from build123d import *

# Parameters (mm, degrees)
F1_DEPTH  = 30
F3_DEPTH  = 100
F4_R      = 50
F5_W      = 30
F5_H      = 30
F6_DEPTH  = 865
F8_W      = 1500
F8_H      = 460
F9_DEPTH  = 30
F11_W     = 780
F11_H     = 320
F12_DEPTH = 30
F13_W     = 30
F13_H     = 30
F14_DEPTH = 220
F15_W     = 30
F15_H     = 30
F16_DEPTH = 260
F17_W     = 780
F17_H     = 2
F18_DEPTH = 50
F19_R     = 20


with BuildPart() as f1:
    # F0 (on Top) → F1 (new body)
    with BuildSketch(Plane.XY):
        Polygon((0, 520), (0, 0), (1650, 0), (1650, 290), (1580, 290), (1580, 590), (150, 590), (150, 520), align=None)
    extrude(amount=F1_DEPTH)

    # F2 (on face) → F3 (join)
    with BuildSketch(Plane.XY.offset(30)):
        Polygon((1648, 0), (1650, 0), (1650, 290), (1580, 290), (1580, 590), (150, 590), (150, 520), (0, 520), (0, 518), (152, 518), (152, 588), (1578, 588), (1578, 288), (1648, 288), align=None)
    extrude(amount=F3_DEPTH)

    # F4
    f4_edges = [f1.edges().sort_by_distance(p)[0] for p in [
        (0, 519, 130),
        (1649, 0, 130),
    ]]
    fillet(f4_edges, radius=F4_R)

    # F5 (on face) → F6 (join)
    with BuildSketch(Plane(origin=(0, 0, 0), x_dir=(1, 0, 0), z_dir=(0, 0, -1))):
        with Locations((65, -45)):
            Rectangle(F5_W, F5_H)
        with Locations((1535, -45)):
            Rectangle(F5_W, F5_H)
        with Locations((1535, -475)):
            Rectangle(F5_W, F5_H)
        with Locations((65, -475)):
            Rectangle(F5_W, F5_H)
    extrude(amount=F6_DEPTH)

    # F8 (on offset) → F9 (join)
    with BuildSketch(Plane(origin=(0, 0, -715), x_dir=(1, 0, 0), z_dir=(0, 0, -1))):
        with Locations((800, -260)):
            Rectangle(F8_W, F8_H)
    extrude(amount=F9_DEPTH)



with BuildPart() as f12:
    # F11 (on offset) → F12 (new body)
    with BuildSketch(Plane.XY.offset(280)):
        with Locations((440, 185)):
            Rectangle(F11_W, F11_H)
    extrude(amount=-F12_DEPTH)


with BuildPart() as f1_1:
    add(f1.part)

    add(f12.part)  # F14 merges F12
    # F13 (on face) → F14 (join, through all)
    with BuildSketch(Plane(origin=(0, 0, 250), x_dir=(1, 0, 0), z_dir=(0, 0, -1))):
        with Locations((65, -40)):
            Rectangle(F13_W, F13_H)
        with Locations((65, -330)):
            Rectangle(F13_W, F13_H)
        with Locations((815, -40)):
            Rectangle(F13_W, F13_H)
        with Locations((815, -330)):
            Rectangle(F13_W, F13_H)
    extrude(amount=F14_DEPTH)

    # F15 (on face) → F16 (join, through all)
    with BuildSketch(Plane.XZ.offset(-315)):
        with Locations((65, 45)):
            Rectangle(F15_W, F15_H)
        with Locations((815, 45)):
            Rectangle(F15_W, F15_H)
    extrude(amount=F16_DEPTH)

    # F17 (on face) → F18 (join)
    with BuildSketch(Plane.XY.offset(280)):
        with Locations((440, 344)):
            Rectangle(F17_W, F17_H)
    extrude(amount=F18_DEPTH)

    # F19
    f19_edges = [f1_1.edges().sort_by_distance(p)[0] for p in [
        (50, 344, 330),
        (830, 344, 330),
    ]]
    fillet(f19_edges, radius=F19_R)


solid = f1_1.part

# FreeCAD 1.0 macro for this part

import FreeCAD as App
import Part
import Sketcher

V = App.Vector


def edges_at(feature, points):
    """Names of the edges that pass closest to the given points."""
    edges = feature.Shape.Edges
    near = lambda p: min(range(len(edges)), key=lambda i: edges[i].distToShape(Part.Vertex(*p))[0])
    return sorted({f"Edge{near(p) + 1}" for p in points})

doc = App.newDocument("Part")
params = doc.addObject("Spreadsheet::Sheet", "Params")
for row, (alias, value) in enumerate([
    ("sketch1_width", "1650 mm"),
    ("sketch1_width2", "70 mm"),
    ("sketch1_width3", "1430 mm"),
    ("sketch1_height", "520 mm"),
    ("sketch1_height2", "290 mm"),
    ("pad1_length", "30 mm"),
    ("sketch2_width", "2 mm"),
    ("sketch2_width2", "70 mm"),
    ("sketch2_width3", "1430 mm"),
    ("sketch2_width4", "150 mm"),
    ("sketch2_width5", "152 mm"),
    ("pad2_length", "100 mm"),
    ("fillet_radius", "50 mm"),
    ("sketch3_width", "30 mm"),
    ("pad3_length", "865 mm"),
    ("sketch4_width", "1500 mm"),
    ("sketch4_height", "460 mm"),
    ("pad4_length", "30 mm"),
    ("sketch5_width", "780 mm"),
    ("sketch5_height", "320 mm"),
    ("pad5_length", "30 mm"),
    ("sketch6_width", "30 mm"),
    ("pad6_length", "220 mm"),
    ("sketch7_width", "30 mm"),
    ("pad7_length", "260 mm"),
    ("sketch8_width", "780 mm"),
    ("sketch8_height", "2 mm"),
    ("pad8_length", "50 mm"),
    ("fillet2_radius", "20 mm"),
], start=1):
    params.set(f"A{row}", alias)
    params.set(f"B{row}", "=" + value)
    params.setAlias(f"B{row}", alias)

body = doc.addObject("PartDesign::Body", "Body")

# Sketch on XY plane
sketch1 = body.newObject("Sketcher::SketchObject", "Sketch")
sketch1.AttachmentSupport = (doc.getObject("XY_Plane"), [""])
sketch1.MapMode = "FlatFace"
sketch1.addGeometry([
    Part.LineSegment(V(0, 520, 0), V(0, 0, 0)),  # 0
    Part.LineSegment(V(0, 0, 0), V(1650, 0, 0)),  # 1
    Part.LineSegment(V(1650, 0, 0), V(1650, 290, 0)),  # 2
    Part.LineSegment(V(1650, 290, 0), V(1580, 290, 0)),  # 3
    Part.LineSegment(V(1580, 290, 0), V(1580, 590, 0)),  # 4
    Part.LineSegment(V(1580, 590, 0), V(150, 590, 0)),  # 5
    Part.LineSegment(V(150, 590, 0), V(150, 520, 0)),  # 6
    Part.LineSegment(V(150, 520, 0), V(0, 520, 0)),  # 7
], False)
sketch1.addConstraint([
    Sketcher.Constraint("Coincident", 0, 2, 1, 1),
    Sketcher.Constraint("Coincident", 1, 2, 2, 1),
    Sketcher.Constraint("Coincident", 2, 2, 3, 1),
    Sketcher.Constraint("Coincident", 3, 2, 4, 1),
    Sketcher.Constraint("Coincident", 4, 2, 5, 1),
    Sketcher.Constraint("Coincident", 5, 2, 6, 1),
    Sketcher.Constraint("Coincident", 6, 2, 7, 1),
    Sketcher.Constraint("Coincident", 7, 2, 0, 1),
    Sketcher.Constraint("Vertical", 0),
    Sketcher.Constraint("Horizontal", 1),
    Sketcher.Constraint("Vertical", 2),
    Sketcher.Constraint("Horizontal", 3),
    Sketcher.Constraint("Vertical", 4),
    Sketcher.Constraint("Horizontal", 5),
    Sketcher.Constraint("Vertical", 6),
    Sketcher.Constraint("Horizontal", 7),
    Sketcher.Constraint("Coincident", 0, 2, -1, 1),
    Sketcher.Constraint("Equal", 3, 6),
    Sketcher.Constraint("DistanceX", 1, 1, 1, 2, 1650.0),
    Sketcher.Constraint("DistanceX", 3, 2, 3, 1, 70.0),
    Sketcher.Constraint("DistanceX", 5, 2, 5, 1, 1430.0),
    Sketcher.Constraint("DistanceY", 0, 2, 0, 1, 520.0),
    Sketcher.Constraint("DistanceY", 2, 1, 2, 2, 290.0),
])
sketch1.setExpression("Constraints[18]", "Params.sketch1_width")
sketch1.setExpression("Constraints[19]", "Params.sketch1_width2")
sketch1.setExpression("Constraints[20]", "Params.sketch1_width3")
sketch1.setExpression("Constraints[21]", "Params.sketch1_height")
sketch1.setExpression("Constraints[22]", "Params.sketch1_height2")
pad1 = body.newObject("PartDesign::Pad", "Pad")
pad1.Profile = sketch1
pad1.setExpression("Length", "Params.pad1_length")

# Sketch on XY plane
sketch2 = body.newObject("Sketcher::SketchObject", "Sketch001")
sketch2.AttachmentSupport = (doc.getObject("XY_Plane"), [""])
sketch2.MapMode = "FlatFace"
sketch2.AttachmentOffset = App.Placement(V(0, 0, 30), App.Rotation())
sketch2.addGeometry([
    Part.LineSegment(V(1648, 0, 0), V(1650, 0, 0)),  # 0
    Part.LineSegment(V(1650, 0, 0), V(1650, 290, 0)),  # 1
    Part.LineSegment(V(1650, 290, 0), V(1580, 290, 0)),  # 2
    Part.LineSegment(V(1580, 290, 0), V(1580, 590, 0)),  # 3
    Part.LineSegment(V(1580, 590, 0), V(150, 590, 0)),  # 4
    Part.LineSegment(V(150, 590, 0), V(150, 520, 0)),  # 5
    Part.LineSegment(V(150, 520, 0), V(0, 520, 0)),  # 6
    Part.LineSegment(V(0, 520, 0), V(0, 518, 0)),  # 7
    Part.LineSegment(V(0, 518, 0), V(152, 518, 0)),  # 8
    Part.LineSegment(V(152, 518, 0), V(152, 588, 0)),  # 9
    Part.LineSegment(V(152, 588, 0), V(1578, 588, 0)),  # 10
    Part.LineSegment(V(1578, 588, 0), V(1578, 288, 0)),  # 11
    Part.LineSegment(V(1578, 288, 0), V(1648, 288, 0)),  # 12
    Part.LineSegment(V(1648, 288, 0), V(1648, 0, 0)),  # 13
], False)
sketch2.addConstraint([
    Sketcher.Constraint("Coincident", 0, 2, 1, 1),
    Sketcher.Constraint("Coincident", 1, 2, 2, 1),
    Sketcher.Constraint("Coincident", 2, 2, 3, 1),
    Sketcher.Constraint("Coincident", 3, 2, 4, 1),
    Sketcher.Constraint("Coincident", 4, 2, 5, 1),
    Sketcher.Constraint("Coincident", 5, 2, 6, 1),
    Sketcher.Constraint("Coincident", 6, 2, 7, 1),
    Sketcher.Constraint("Coincident", 7, 2, 8, 1),
    Sketcher.Constraint("Coincident", 8, 2, 9, 1),
    Sketcher.Constraint("Coincident", 9, 2, 10, 1),
    Sketcher.Constraint("Coincident", 10, 2, 11, 1),
    Sketcher.Constraint("Coincident", 11, 2, 12, 1),
    Sketcher.Constraint("Coincident", 12, 2, 13, 1),
    Sketcher.Constraint("Coincident", 13, 2, 0, 1),
    Sketcher.Constraint("Horizontal", 0),
    Sketcher.Constraint("Vertical", 1),
    Sketcher.Constraint("Horizontal", 2),
    Sketcher.Constraint("Vertical", 3),
    Sketcher.Constraint("Horizontal", 4),
    Sketcher.Constraint("Vertical", 5),
    Sketcher.Constraint("Horizontal", 6),
    Sketcher.Constraint("Vertical", 7),
    Sketcher.Constraint("Horizontal", 8),
    Sketcher.Constraint("Vertical", 9),
    Sketcher.Constraint("Horizontal", 10),
    Sketcher.Constraint("Vertical", 11),
    Sketcher.Constraint("Horizontal", 12),
    Sketcher.Constraint("Vertical", 13),
    Sketcher.Constraint("PointOnObject", 0, 2, -1),
    Sketcher.Constraint("PointOnObject", 6, 2, -2),
    Sketcher.Constraint("Equal", 2, 12),
    Sketcher.Constraint("Equal", 12, 5),
    Sketcher.Constraint("Equal", 0, 7),
    Sketcher.Constraint("Equal", 5, 9),
    Sketcher.Constraint("Equal", 3, 11),
    Sketcher.Constraint("DistanceX", 0, 1, 0, 2, 2.0),
    Sketcher.Constraint("DistanceX", 2, 2, 2, 1, 70.0),
    Sketcher.Constraint("DistanceX", 4, 2, 4, 1, 1430.0),
    Sketcher.Constraint("DistanceX", 6, 2, 6, 1, 150.0),
    Sketcher.Constraint("DistanceX", 8, 1, 8, 2, 152.0),
    Sketcher.Constraint("DistanceY", 1, 1, 1, 2, 290.0),
    Sketcher.Constraint("DistanceY", 3, 1, 3, 2, 300.0),
])
sketch2.setExpression("Constraints[35]", "Params.sketch2_width")
sketch2.setExpression("Constraints[36]", "Params.sketch2_width2")
sketch2.setExpression("Constraints[37]", "Params.sketch2_width3")
sketch2.setExpression("Constraints[38]", "Params.sketch2_width4")
sketch2.setExpression("Constraints[39]", "Params.sketch2_width5")
pad2 = body.newObject("PartDesign::Pad", "Pad001")
pad2.Profile = sketch2
pad2.setExpression("Length", "Params.pad2_length")
doc.recompute()

fillet = body.newObject("PartDesign::Fillet", "Fillet")
fillet.Base = (pad2, edges_at(pad2, [(0, 519, 130), (1649, 0, 130)]))
fillet.setExpression("Radius", "Params.fillet_radius")

# Sketch on XY plane
sketch3 = body.newObject("Sketcher::SketchObject", "Sketch002")
sketch3.AttachmentSupport = (doc.getObject("XY_Plane"), [""])
sketch3.MapMode = "FlatFace"
sketch3.addGeometry([
    Part.LineSegment(V(50, 30, 0), V(50, 60, 0)),  # 0
    Part.LineSegment(V(50, 60, 0), V(80, 60, 0)),  # 1
    Part.LineSegment(V(80, 60, 0), V(80, 30, 0)),  # 2
    Part.LineSegment(V(80, 30, 0), V(50, 30, 0)),  # 3
    Part.LineSegment(V(1520, 30, 0), V(1520, 60, 0)),  # 4
    Part.LineSegment(V(1520, 60, 0), V(1550, 60, 0)),  # 5
    Part.LineSegment(V(1550, 60, 0), V(1550, 30, 0)),  # 6
    Part.LineSegment(V(1550, 30, 0), V(1520, 30, 0)),  # 7
    Part.LineSegment(V(1520, 460, 0), V(1520, 490, 0)),  # 8
    Part.LineSegment(V(1520, 490, 0), V(1550, 490, 0)),  # 9
    Part.LineSegment(V(1550, 490, 0), V(1550, 460, 0)),  # 10
    Part.LineSegment(V(1550, 460, 0), V(1520, 460, 0)),  # 11
    Part.LineSegment(V(50, 460, 0), V(50, 490, 0)),  # 12
    Part.LineSegment(V(50, 490, 0), V(80, 490, 0)),  # 13
    Part.LineSegment(V(80, 490, 0), V(80, 460, 0)),  # 14
    Part.LineSegment(V(80, 460, 0), V(50, 460, 0)),  # 15
], False)
sketch3.addConstraint([
    Sketcher.Constraint("Coincident", 0, 2, 1, 1),
    Sketcher.Constraint("Coincident", 1, 2, 2, 1),
    Sketcher.Constraint("Coincident", 2, 2, 3, 1),
    Sketcher.Constraint("Coincident", 3, 2, 0, 1),
    Sketcher.Constraint("Coincident", 4, 2, 5, 1),
    Sketcher.Constraint("Coincident", 5, 2, 6, 1),
    Sketcher.Constraint("Coincident", 6, 2, 7, 1),
    Sketcher.Constraint("Coincident", 7, 2, 4, 1),
    Sketcher.Constraint("Coincident", 8, 2, 9, 1),
    Sketcher.Constraint("Coincident", 9, 2, 10, 1),
    Sketcher.Constraint("Coincident", 10, 2, 11, 1),
    Sketcher.Constraint("Coincident", 11, 2, 8, 1),
    Sketcher.Constraint("Coincident", 12, 2, 13, 1),
    Sketcher.Constraint("Coincident", 13, 2, 14, 1),
    Sketcher.Constraint("Coincident", 14, 2, 15, 1),
    Sketcher.Constraint("Coincident", 15, 2, 12, 1),
    Sketcher.Constraint("Vertical", 0),
    Sketcher.Constraint("Horizontal", 1),
    Sketcher.Constraint("Vertical", 2),
    Sketcher.Constraint("Horizontal", 3),
    Sketcher.Constraint("Vertical", 4),
    Sketcher.Constraint("Horizontal", 5),
    Sketcher.Constraint("Vertical", 6),
    Sketcher.Constraint("Horizontal", 7),
    Sketcher.Constraint("Vertical", 8),
    Sketcher.Constraint("Horizontal", 9),
    Sketcher.Constraint("Vertical", 10),
    Sketcher.Constraint("Horizontal", 11),
    Sketcher.Constraint("Vertical", 12),
    Sketcher.Constraint("Horizontal", 13),
    Sketcher.Constraint("Vertical", 14),
    Sketcher.Constraint("Horizontal", 15),
    Sketcher.Constraint("Horizontal", 1, 2, 4, 2),
    Sketcher.Constraint("Horizontal", 3, 2, 6, 2),
    Sketcher.Constraint("Horizontal", 9, 2, 12, 2),
    Sketcher.Constraint("Horizontal", 11, 2, 14, 2),
    Sketcher.Constraint("Vertical", 7, 2, 8, 2),
    Sketcher.Constraint("Vertical", 6, 2, 9, 2),
    Sketcher.Constraint("Vertical", 3, 2, 12, 2),
    Sketcher.Constraint("Vertical", 2, 2, 13, 2),
    Sketcher.Constraint("Equal", 3, 5),
    Sketcher.Constraint("Equal", 15, 0),
    Sketcher.Constraint("Equal", 6, 8),
    Sketcher.Constraint("DistanceX", 1, 1, 1, 2, 30.0),
    Sketcher.Constraint("DistanceX", -1, 1, 0, 2, 50.0),
    Sketcher.Constraint("DistanceY", -1, 1, 0, 2, 60.0),
    Sketcher.Constraint("DistanceX", -1, 1, 4, 2, 1520.0),
    Sketcher.Constraint("DistanceY", -1, 1, 8, 2, 490.0),
])
sketch3.setExpression("Constraints[43]", "Params.sketch3_width")
pad3 = body.newObject("PartDesign::Pad", "Pad002")
pad3.Profile = sketch3
pad3.setExpression("Length", "Params.pad3_length")
pad3.Reversed = True

# Sketch on XY plane
sketch4 = body.newObject("Sketcher::SketchObject", "Sketch003")
sketch4.AttachmentSupport = (doc.getObject("XY_Plane"), [""])
sketch4.MapMode = "FlatFace"
sketch4.AttachmentOffset = App.Placement(V(0, 0, -715), App.Rotation())
sketch4.addGeometry([
    Part.LineSegment(V(50, 30, 0), V(50, 490, 0)),
    Part.LineSegment(V(50, 490, 0), V(1550, 490, 0)),
    Part.LineSegment(V(1550, 490, 0), V(1550, 30, 0)),
    Part.LineSegment(V(1550, 30, 0), V(50, 30, 0)),
], False)
sketch4.addConstraint([
    Sketcher.Constraint("Coincident", 0, 2, 1, 1),
    Sketcher.Constraint("Coincident", 1, 2, 2, 1),
    Sketcher.Constraint("Coincident", 2, 2, 3, 1),
    Sketcher.Constraint("Coincident", 3, 2, 0, 1),
    Sketcher.Constraint("Vertical", 0),
    Sketcher.Constraint("Horizontal", 1),
    Sketcher.Constraint("Vertical", 2),
    Sketcher.Constraint("Horizontal", 3),
    Sketcher.Constraint("DistanceX", 1, 1, 1, 2, 1500.0),
    Sketcher.Constraint("DistanceY", 0, 1, 0, 2, 460.0),
    Sketcher.Constraint("DistanceX", -1, 1, 0, 2, 50.0),
    Sketcher.Constraint("DistanceY", -1, 1, 0, 2, 490.0),
])
sketch4.setExpression("Constraints[8]", "Params.sketch4_width")
sketch4.setExpression("Constraints[9]", "Params.sketch4_height")
pad4 = body.newObject("PartDesign::Pad", "Pad003")
pad4.Profile = sketch4
pad4.setExpression("Length", "Params.pad4_length")
pad4.Reversed = True
body2 = doc.addObject("PartDesign::Body", "Body001")

# Sketch on XY plane
sketch5 = body2.newObject("Sketcher::SketchObject", "Sketch004")
sketch5.AttachmentSupport = (doc.getObject("XY_Plane001"), [""])
sketch5.MapMode = "FlatFace"
sketch5.AttachmentOffset = App.Placement(V(0, 0, 280), App.Rotation())
sketch5.addGeometry([
    Part.LineSegment(V(50, 345, 0), V(50, 25, 0)),
    Part.LineSegment(V(50, 25, 0), V(830, 25, 0)),
    Part.LineSegment(V(830, 25, 0), V(830, 345, 0)),
    Part.LineSegment(V(830, 345, 0), V(50, 345, 0)),
], False)
sketch5.addConstraint([
    Sketcher.Constraint("Coincident", 0, 2, 1, 1),
    Sketcher.Constraint("Coincident", 1, 2, 2, 1),
    Sketcher.Constraint("Coincident", 2, 2, 3, 1),
    Sketcher.Constraint("Coincident", 3, 2, 0, 1),
    Sketcher.Constraint("Vertical", 0),
    Sketcher.Constraint("Horizontal", 1),
    Sketcher.Constraint("Vertical", 2),
    Sketcher.Constraint("Horizontal", 3),
    Sketcher.Constraint("DistanceX", 1, 1, 1, 2, 780.0),
    Sketcher.Constraint("DistanceY", 0, 2, 0, 1, 320.0),
    Sketcher.Constraint("DistanceX", -1, 1, 0, 2, 50.0),
    Sketcher.Constraint("DistanceY", -1, 1, 0, 2, 25.0),
])
sketch5.setExpression("Constraints[8]", "Params.sketch5_width")
sketch5.setExpression("Constraints[9]", "Params.sketch5_height")
pad5 = body2.newObject("PartDesign::Pad", "Pad004")
pad5.Profile = sketch5
pad5.setExpression("Length", "Params.pad5_length")
pad5.Reversed = True
body.AllowCompound = True
doc.recompute()

boolean = body.newObject("PartDesign::Boolean", "Boolean")
boolean.Type = "Fuse"
boolean.addObjects([body2])

# Sketch on XY plane
sketch6 = body.newObject("Sketcher::SketchObject", "Sketch005")
sketch6.AttachmentSupport = (doc.getObject("XY_Plane"), [""])
sketch6.MapMode = "FlatFace"
sketch6.AttachmentOffset = App.Placement(V(0, 0, 250), App.Rotation())
sketch6.addGeometry([
    Part.LineSegment(V(50, 25, 0), V(50, 55, 0)),  # 0
    Part.LineSegment(V(50, 55, 0), V(80, 55, 0)),  # 1
    Part.LineSegment(V(80, 55, 0), V(80, 25, 0)),  # 2
    Part.LineSegment(V(80, 25, 0), V(50, 25, 0)),  # 3
    Part.LineSegment(V(50, 315, 0), V(50, 345, 0)),  # 4
    Part.LineSegment(V(50, 345, 0), V(80, 345, 0)),  # 5
    Part.LineSegment(V(80, 345, 0), V(80, 315, 0)),  # 6
    Part.LineSegment(V(80, 315, 0), V(50, 315, 0)),  # 7
    Part.LineSegment(V(800, 25, 0), V(800, 55, 0)),  # 8
    Part.LineSegment(V(800, 55, 0), V(830, 55, 0)),  # 9
    Part.LineSegment(V(830, 55, 0), V(830, 25, 0)),  # 10
    Part.LineSegment(V(830, 25, 0), V(800, 25, 0)),  # 11
    Part.LineSegment(V(800, 315, 0), V(800, 345, 0)),  # 12
    Part.LineSegment(V(800, 345, 0), V(830, 345, 0)),  # 13
    Part.LineSegment(V(830, 345, 0), V(830, 315, 0)),  # 14
    Part.LineSegment(V(830, 315, 0), V(800, 315, 0)),  # 15
], False)
sketch6.addConstraint([
    Sketcher.Constraint("Coincident", 0, 2, 1, 1),
    Sketcher.Constraint("Coincident", 1, 2, 2, 1),
    Sketcher.Constraint("Coincident", 2, 2, 3, 1),
    Sketcher.Constraint("Coincident", 3, 2, 0, 1),
    Sketcher.Constraint("Coincident", 4, 2, 5, 1),
    Sketcher.Constraint("Coincident", 5, 2, 6, 1),
    Sketcher.Constraint("Coincident", 6, 2, 7, 1),
    Sketcher.Constraint("Coincident", 7, 2, 4, 1),
    Sketcher.Constraint("Coincident", 8, 2, 9, 1),
    Sketcher.Constraint("Coincident", 9, 2, 10, 1),
    Sketcher.Constraint("Coincident", 10, 2, 11, 1),
    Sketcher.Constraint("Coincident", 11, 2, 8, 1),
    Sketcher.Constraint("Coincident", 12, 2, 13, 1),
    Sketcher.Constraint("Coincident", 13, 2, 14, 1),
    Sketcher.Constraint("Coincident", 14, 2, 15, 1),
    Sketcher.Constraint("Coincident", 15, 2, 12, 1),
    Sketcher.Constraint("Vertical", 0),
    Sketcher.Constraint("Horizontal", 1),
    Sketcher.Constraint("Vertical", 2),
    Sketcher.Constraint("Horizontal", 3),
    Sketcher.Constraint("Vertical", 4),
    Sketcher.Constraint("Horizontal", 5),
    Sketcher.Constraint("Vertical", 6),
    Sketcher.Constraint("Horizontal", 7),
    Sketcher.Constraint("Vertical", 8),
    Sketcher.Constraint("Horizontal", 9),
    Sketcher.Constraint("Vertical", 10),
    Sketcher.Constraint("Horizontal", 11),
    Sketcher.Constraint("Vertical", 12),
    Sketcher.Constraint("Horizontal", 13),
    Sketcher.Constraint("Vertical", 14),
    Sketcher.Constraint("Horizontal", 15),
    Sketcher.Constraint("Horizontal", 1, 2, 8, 2),
    Sketcher.Constraint("Horizontal", 3, 2, 10, 2),
    Sketcher.Constraint("Horizontal", 5, 2, 12, 2),
    Sketcher.Constraint("Horizontal", 7, 2, 14, 2),
    Sketcher.Constraint("Vertical", 3, 2, 4, 2),
    Sketcher.Constraint("Vertical", 2, 2, 5, 2),
    Sketcher.Constraint("Vertical", 11, 2, 12, 2),
    Sketcher.Constraint("Vertical", 10, 2, 13, 2),
    Sketcher.Constraint("Equal", 7, 9),
    Sketcher.Constraint("Equal", 15, 0),
    Sketcher.Constraint("Equal", 2, 4),
    Sketcher.Constraint("DistanceX", 1, 1, 1, 2, 30.0),
    Sketcher.Constraint("DistanceX", -1, 1, 0, 2, 50.0),
    Sketcher.Constraint("DistanceY", -1, 1, 0, 2, 55.0),
    Sketcher.Constraint("DistanceY", -1, 1, 4, 2, 345.0),
    Sketcher.Constraint("DistanceX", -1, 1, 8, 2, 800.0),
])
sketch6.setExpression("Constraints[43]", "Params.sketch6_width")
pad6 = body.newObject("PartDesign::Pad", "Pad005")
pad6.Profile = sketch6
pad6.setExpression("Length", "Params.pad6_length")
pad6.Reversed = True

# Sketch on XZ plane
sketch7 = body.newObject("Sketcher::SketchObject", "Sketch006")
sketch7.AttachmentSupport = (doc.getObject("XZ_Plane"), [""])
sketch7.MapMode = "FlatFace"
sketch7.AttachmentOffset = App.Placement(V(0, 0, -315), App.Rotation())
sketch7.addGeometry([
    Part.LineSegment(V(50, 60, 0), V(50, 30, 0)),  # 0
    Part.LineSegment(V(50, 30, 0), V(80, 30, 0)),  # 1
    Part.LineSegment(V(80, 30, 0), V(80, 60, 0)),  # 2
    Part.LineSegment(V(80, 60, 0), V(50, 60, 0)),  # 3
    Part.LineSegment(V(800, 60, 0), V(800, 30, 0)),  # 4
    Part.LineSegment(V(800, 30, 0), V(830, 30, 0)),  # 5
    Part.LineSegment(V(830, 30, 0), V(830, 60, 0)),  # 6
    Part.LineSegment(V(830, 60, 0), V(800, 60, 0)),  # 7
], False)
sketch7.addConstraint([
    Sketcher.Constraint("Coincident", 0, 2, 1, 1),
    Sketcher.Constraint("Coincident", 1, 2, 2, 1),
    Sketcher.Constraint("Coincident", 2, 2, 3, 1),
    Sketcher.Constraint("Coincident", 3, 2, 0, 1),
    Sketcher.Constraint("Coincident", 4, 2, 5, 1),
    Sketcher.Constraint("Coincident", 5, 2, 6, 1),
    Sketcher.Constraint("Coincident", 6, 2, 7, 1),
    Sketcher.Constraint("Coincident", 7, 2, 4, 1),
    Sketcher.Constraint("Vertical", 0),
    Sketcher.Constraint("Horizontal", 1),
    Sketcher.Constraint("Vertical", 2),
    Sketcher.Constraint("Horizontal", 3),
    Sketcher.Constraint("Vertical", 4),
    Sketcher.Constraint("Horizontal", 5),
    Sketcher.Constraint("Vertical", 6),
    Sketcher.Constraint("Horizontal", 7),
    Sketcher.Constraint("Horizontal", 1, 2, 4, 2),
    Sketcher.Constraint("Horizontal", 3, 2, 6, 2),
    Sketcher.Constraint("Equal", 3, 5),
    Sketcher.Constraint("Equal", 7, 0),
    Sketcher.Constraint("DistanceX", 1, 1, 1, 2, 30.0),
    Sketcher.Constraint("DistanceX", -1, 1, 0, 2, 50.0),
    Sketcher.Constraint("DistanceY", -1, 1, 0, 2, 30.0),
    Sketcher.Constraint("DistanceX", -1, 1, 4, 2, 800.0),
])
sketch7.setExpression("Constraints[20]", "Params.sketch7_width")
pad7 = body.newObject("PartDesign::Pad", "Pad006")
pad7.Profile = sketch7
pad7.setExpression("Length", "Params.pad7_length")

# Sketch on XY plane
sketch8 = body.newObject("Sketcher::SketchObject", "Sketch007")
sketch8.AttachmentSupport = (doc.getObject("XY_Plane"), [""])
sketch8.MapMode = "FlatFace"
sketch8.AttachmentOffset = App.Placement(V(0, 0, 280), App.Rotation())
sketch8.addGeometry([
    Part.LineSegment(V(50, 345, 0), V(50, 343, 0)),
    Part.LineSegment(V(50, 343, 0), V(830, 343, 0)),
    Part.LineSegment(V(830, 343, 0), V(830, 345, 0)),
    Part.LineSegment(V(830, 345, 0), V(50, 345, 0)),
], False)
sketch8.addConstraint([
    Sketcher.Constraint("Coincident", 0, 2, 1, 1),
    Sketcher.Constraint("Coincident", 1, 2, 2, 1),
    Sketcher.Constraint("Coincident", 2, 2, 3, 1),
    Sketcher.Constraint("Coincident", 3, 2, 0, 1),
    Sketcher.Constraint("Vertical", 0),
    Sketcher.Constraint("Horizontal", 1),
    Sketcher.Constraint("Vertical", 2),
    Sketcher.Constraint("Horizontal", 3),
    Sketcher.Constraint("DistanceX", 1, 1, 1, 2, 780.0),
    Sketcher.Constraint("DistanceY", 0, 2, 0, 1, 2.0),
    Sketcher.Constraint("DistanceX", -1, 1, 0, 2, 50.0),
    Sketcher.Constraint("DistanceY", -1, 1, 0, 2, 343.0),
])
sketch8.setExpression("Constraints[8]", "Params.sketch8_width")
sketch8.setExpression("Constraints[9]", "Params.sketch8_height")
pad8 = body.newObject("PartDesign::Pad", "Pad007")
pad8.Profile = sketch8
pad8.setExpression("Length", "Params.pad8_length")
doc.recompute()

fillet2 = body.newObject("PartDesign::Fillet", "Fillet001")
fillet2.Base = (pad8, edges_at(pad8, [(50, 344, 330), (830, 344, 330)]))
fillet2.setExpression("Radius", "Params.fillet2_radius")

doc.recompute()
